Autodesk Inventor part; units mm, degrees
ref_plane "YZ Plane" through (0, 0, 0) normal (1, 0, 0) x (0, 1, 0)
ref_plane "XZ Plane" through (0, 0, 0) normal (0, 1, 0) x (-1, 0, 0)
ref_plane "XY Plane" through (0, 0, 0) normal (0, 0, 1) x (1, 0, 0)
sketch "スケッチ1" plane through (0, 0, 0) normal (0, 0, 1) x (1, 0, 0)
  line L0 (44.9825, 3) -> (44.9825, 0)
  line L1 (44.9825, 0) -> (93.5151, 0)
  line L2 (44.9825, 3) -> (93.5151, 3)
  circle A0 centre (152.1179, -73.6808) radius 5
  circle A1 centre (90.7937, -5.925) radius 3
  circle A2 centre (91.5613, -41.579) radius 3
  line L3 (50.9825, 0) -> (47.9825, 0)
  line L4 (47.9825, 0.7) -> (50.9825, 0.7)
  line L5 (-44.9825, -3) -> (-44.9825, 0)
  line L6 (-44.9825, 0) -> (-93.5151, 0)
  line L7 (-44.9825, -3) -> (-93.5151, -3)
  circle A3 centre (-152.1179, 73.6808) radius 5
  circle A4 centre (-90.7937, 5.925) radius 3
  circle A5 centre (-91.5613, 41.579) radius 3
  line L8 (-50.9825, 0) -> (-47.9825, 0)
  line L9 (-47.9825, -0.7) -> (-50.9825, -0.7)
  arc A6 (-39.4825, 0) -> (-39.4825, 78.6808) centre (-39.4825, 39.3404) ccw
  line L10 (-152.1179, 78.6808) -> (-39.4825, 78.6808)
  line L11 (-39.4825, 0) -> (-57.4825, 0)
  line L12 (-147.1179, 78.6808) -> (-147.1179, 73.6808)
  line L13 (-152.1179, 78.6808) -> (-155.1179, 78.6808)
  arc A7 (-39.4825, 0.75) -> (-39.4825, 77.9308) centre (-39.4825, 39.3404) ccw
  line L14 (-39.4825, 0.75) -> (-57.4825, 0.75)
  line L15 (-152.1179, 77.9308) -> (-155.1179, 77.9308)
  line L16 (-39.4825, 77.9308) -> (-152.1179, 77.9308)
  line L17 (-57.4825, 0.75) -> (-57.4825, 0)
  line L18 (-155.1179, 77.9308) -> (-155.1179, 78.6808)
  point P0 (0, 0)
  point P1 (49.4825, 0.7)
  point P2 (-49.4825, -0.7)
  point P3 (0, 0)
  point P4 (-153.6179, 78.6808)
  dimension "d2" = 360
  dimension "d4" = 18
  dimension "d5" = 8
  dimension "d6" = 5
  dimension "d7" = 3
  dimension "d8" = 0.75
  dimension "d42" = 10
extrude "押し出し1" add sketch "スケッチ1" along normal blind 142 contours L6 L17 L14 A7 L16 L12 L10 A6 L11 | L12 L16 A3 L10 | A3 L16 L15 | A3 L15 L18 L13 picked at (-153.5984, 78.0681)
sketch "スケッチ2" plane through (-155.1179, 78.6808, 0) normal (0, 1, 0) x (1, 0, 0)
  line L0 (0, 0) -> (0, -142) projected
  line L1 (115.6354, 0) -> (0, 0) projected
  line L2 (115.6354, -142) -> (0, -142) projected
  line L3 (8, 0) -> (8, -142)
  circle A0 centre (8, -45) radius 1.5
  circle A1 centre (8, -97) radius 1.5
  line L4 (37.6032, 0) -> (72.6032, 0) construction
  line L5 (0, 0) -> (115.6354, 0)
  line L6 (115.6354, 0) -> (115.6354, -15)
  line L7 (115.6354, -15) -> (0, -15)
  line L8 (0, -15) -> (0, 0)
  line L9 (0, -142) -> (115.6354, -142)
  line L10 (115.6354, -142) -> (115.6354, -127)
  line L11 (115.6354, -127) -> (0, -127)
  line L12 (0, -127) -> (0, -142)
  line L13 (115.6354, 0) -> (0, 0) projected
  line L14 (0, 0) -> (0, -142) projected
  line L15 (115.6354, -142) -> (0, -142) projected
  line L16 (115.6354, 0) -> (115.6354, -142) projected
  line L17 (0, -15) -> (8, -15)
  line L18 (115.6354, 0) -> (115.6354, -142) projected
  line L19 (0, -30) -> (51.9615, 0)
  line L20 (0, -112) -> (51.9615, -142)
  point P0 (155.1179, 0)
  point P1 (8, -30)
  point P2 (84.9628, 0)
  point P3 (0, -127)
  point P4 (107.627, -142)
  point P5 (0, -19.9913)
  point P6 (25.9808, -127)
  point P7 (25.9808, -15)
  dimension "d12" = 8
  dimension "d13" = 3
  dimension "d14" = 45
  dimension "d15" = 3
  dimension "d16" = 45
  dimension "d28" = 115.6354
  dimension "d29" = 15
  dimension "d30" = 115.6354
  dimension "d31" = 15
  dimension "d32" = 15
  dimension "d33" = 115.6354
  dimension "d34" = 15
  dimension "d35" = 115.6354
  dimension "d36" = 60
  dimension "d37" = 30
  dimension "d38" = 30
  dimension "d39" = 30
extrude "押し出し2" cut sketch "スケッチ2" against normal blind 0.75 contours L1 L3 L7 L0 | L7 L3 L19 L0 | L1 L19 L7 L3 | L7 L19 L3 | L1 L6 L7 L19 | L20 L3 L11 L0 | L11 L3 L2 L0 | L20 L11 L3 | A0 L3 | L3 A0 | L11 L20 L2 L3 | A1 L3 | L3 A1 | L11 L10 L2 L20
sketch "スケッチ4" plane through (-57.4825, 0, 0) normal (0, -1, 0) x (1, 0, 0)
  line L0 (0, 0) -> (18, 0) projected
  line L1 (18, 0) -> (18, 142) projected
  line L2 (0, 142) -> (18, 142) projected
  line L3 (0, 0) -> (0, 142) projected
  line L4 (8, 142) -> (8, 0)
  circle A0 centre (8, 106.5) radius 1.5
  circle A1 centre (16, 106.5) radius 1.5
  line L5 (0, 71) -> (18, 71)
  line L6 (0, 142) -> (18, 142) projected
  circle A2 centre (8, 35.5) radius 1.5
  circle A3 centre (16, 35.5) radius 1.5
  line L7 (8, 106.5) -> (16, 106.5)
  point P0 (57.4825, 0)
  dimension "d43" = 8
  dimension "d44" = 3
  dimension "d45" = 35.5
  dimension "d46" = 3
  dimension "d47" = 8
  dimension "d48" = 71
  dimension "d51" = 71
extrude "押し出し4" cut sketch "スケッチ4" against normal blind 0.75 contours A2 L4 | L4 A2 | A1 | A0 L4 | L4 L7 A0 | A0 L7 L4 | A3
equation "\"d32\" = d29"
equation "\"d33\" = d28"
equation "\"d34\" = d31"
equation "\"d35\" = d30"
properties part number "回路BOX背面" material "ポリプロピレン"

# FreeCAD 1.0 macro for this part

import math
import FreeCAD as App
import Part
import Sketcher

V = App.Vector
Q = App.Units.Quantity

doc = App.newDocument("Part")
body = doc.addObject("PartDesign::Body", "Body")

# Sketch on XY plane
sketch1 = body.newObject("Sketcher::SketchObject", "Sketch")
sketch1.AttachmentSupport = (doc.getObject("XY_Plane"), [""])
sketch1.MapMode = "FlatFace"
sketch1.addGeometry(Part.ArcOfCircle(Part.Circle(V(-39.5, 39.3, 0), V(0, 0, 1), 39.3), math.radians(-90), math.radians(90)), False)
sketch1.addGeometry(Part.LineSegment(V(-39.5, 78.7, 0), V(-155.1, 78.7, 0)), False)
sketch1.addGeometry(Part.LineSegment(V(-155.1, 78.7, 0), V(-155.1, 77.9, 0)), False)
sketch1.addGeometry(Part.LineSegment(V(-155.1, 77.9, 0), V(-39.5, 77.9, 0)), False)
sketch1.addGeometry(Part.ArcOfCircle(Part.Circle(V(-39.5, 39.3, 0), V(0, 0, 1), 38.6), math.radians(-90), math.radians(90)), False)
sketch1.addGeometry(Part.LineSegment(V(-39.5, 0.8, 0), V(-57.5, 0.8, 0)), False)
sketch1.addGeometry(Part.LineSegment(V(-57.5, 0.8, 0), V(-57.5, 0, 0)), False)
sketch1.addGeometry(Part.LineSegment(V(-57.5, 0, 0), V(-39.5, 0, 0)), False)
sketch1.addConstraint(Sketcher.Constraint("Tangent", 0, 2, 1, 1))
sketch1.addConstraint(Sketcher.Constraint("Coincident", 1, 2, 2, 1))
sketch1.addConstraint(Sketcher.Constraint("Coincident", 2, 2, 3, 1))
sketch1.addConstraint(Sketcher.Constraint("Tangent", 3, 2, 4, 2))
sketch1.addConstraint(Sketcher.Constraint("Tangent", 4, 1, 5, 1))
sketch1.addConstraint(Sketcher.Constraint("Coincident", 5, 2, 6, 1))
sketch1.addConstraint(Sketcher.Constraint("Coincident", 6, 2, 7, 1))
sketch1.addConstraint(Sketcher.Constraint("Tangent", 7, 2, 0, 1))
sketch1.addConstraint(Sketcher.Constraint("Horizontal", 1))
sketch1.addConstraint(Sketcher.Constraint("Vertical", 2))
sketch1.addConstraint(Sketcher.Constraint("Horizontal", 3))
sketch1.addConstraint(Sketcher.Constraint("Horizontal", 5))
sketch1.addConstraint(Sketcher.Constraint("Vertical", 6))
sketch1.addConstraint(Sketcher.Constraint("Horizontal", 7))
sketch1.addConstraint(Sketcher.Constraint("Coincident", 4, 3, 0, 3))
sketch1.addConstraint(Sketcher.Constraint("PointOnObject", 6, 2, -1))
sketch1.addConstraint(Sketcher.Constraint("DistanceX", 5, 2, 5, 1, 18.0))
sketch1.addConstraint(Sketcher.Constraint("DistanceY", 2, 2, 2, 1, 0.75))
sketch1.addConstraint(Sketcher.Constraint("Radius", 0, 39.3404))
sketch1.addConstraint(Sketcher.Constraint("DistanceX", 1, 2, 1, 1, 115.6354))
sketch1.addConstraint(Sketcher.Constraint("DistanceX", 1, 2, -1, 1, 155.118))
pad1 = body.newObject("PartDesign::Pad", "Pad")
pad1.Profile = sketch1
pad1.Length = 142

# Sketch on XZ plane
sketch2 = body.newObject("Sketcher::SketchObject", "Sketch001")
sketch2.AttachmentSupport = (doc.getObject("XZ_Plane"), [""])
sketch2.MapMode = "FlatFace"
sketch2.AttachmentOffset = App.Placement(V(0, 0, -78.6808), App.Rotation())
sketch2.addGeometry(Part.LineSegment(V(-155.1, 0, 0), V(-155.1, 30, 0)), False)
sketch2.addGeometry(Part.LineSegment(V(-155.1, 30, 0), V(-129.1, 15, 0)), False)
sketch2.addGeometry(Part.LineSegment(V(-129.1, 15, 0), V(-39.5, 15, 0)), False)
sketch2.addGeometry(Part.LineSegment(V(-39.5, 15, 0), V(-39.5, 0, 0)), False)
sketch2.addGeometry(Part.LineSegment(V(-39.5, 0, 0), V(-155.1, 0, 0)), False)
sketch2.addGeometry(Part.LineSegment(V(-155.1, 112, 0), V(-155.1, 142, 0)), False)
sketch2.addGeometry(Part.LineSegment(V(-155.1, 142, 0), V(-39.5, 142, 0)), False)
sketch2.addGeometry(Part.LineSegment(V(-39.5, 142, 0), V(-39.5, 127, 0)), False)
sketch2.addGeometry(Part.LineSegment(V(-39.5, 127, 0), V(-129.1, 127, 0)), False)
sketch2.addGeometry(Part.LineSegment(V(-129.1, 127, 0), V(-155.1, 112, 0)), False)
sketch2.addGeometry(Part.Circle(V(-147.1, 45, 0), V(0, 0, 1), 1.5), False)
sketch2.addGeometry(Part.Circle(V(-147.1, 97, 0), V(0, 0, 1), 1.5), False)
sketch2.addConstraint(Sketcher.Constraint("Coincident", 0, 2, 1, 1))
sketch2.addConstraint(Sketcher.Constraint("Coincident", 1, 2, 2, 1))
sketch2.addConstraint(Sketcher.Constraint("Coincident", 2, 2, 3, 1))
sketch2.addConstraint(Sketcher.Constraint("Coincident", 3, 2, 4, 1))
sketch2.addConstraint(Sketcher.Constraint("Coincident", 4, 2, 0, 1))
sketch2.addConstraint(Sketcher.Constraint("Coincident", 5, 2, 6, 1))
sketch2.addConstraint(Sketcher.Constraint("Coincident", 6, 2, 7, 1))
sketch2.addConstraint(Sketcher.Constraint("Coincident", 7, 2, 8, 1))
sketch2.addConstraint(Sketcher.Constraint("Coincident", 8, 2, 9, 1))
sketch2.addConstraint(Sketcher.Constraint("Coincident", 9, 2, 5, 1))
sketch2.addConstraint(Sketcher.Constraint("Vertical", 0))
sketch2.addConstraint(Sketcher.Constraint("Horizontal", 2))
sketch2.addConstraint(Sketcher.Constraint("Vertical", 3))
sketch2.addConstraint(Sketcher.Constraint("Horizontal", 4))
sketch2.addConstraint(Sketcher.Constraint("Vertical", 5))
sketch2.addConstraint(Sketcher.Constraint("Horizontal", 6))
sketch2.addConstraint(Sketcher.Constraint("Vertical", 7))
sketch2.addConstraint(Sketcher.Constraint("Horizontal", 8))
sketch2.addConstraint(Sketcher.Constraint("Equal", 10, 11))
sketch2.addConstraint(Sketcher.Constraint("PointOnObject", 3, 2, -1))
sketch2.addConstraint(Sketcher.Constraint("Vertical", 10, 3, 11, 3))
sketch2.addConstraint(Sketcher.Constraint("Vertical", 4, 2, 5, 2))
sketch2.addConstraint(Sketcher.Constraint("Vertical", 3, 2, 6, 2))
sketch2.addConstraint(Sketcher.Constraint("Vertical", 1, 2, 8, 2))
sketch2.addConstraint(Sketcher.Constraint("Equal", 0, 5))
sketch2.addConstraint(Sketcher.Constraint("Equal", 3, 7))
sketch2.addConstraint(Sketcher.Constraint("Diameter", 10, 3.0))
sketch2.addConstraint(Sketcher.Constraint("DistanceY", 0, 1, 0, 2, 30.0))
sketch2.addConstraint(Sketcher.Constraint("DistanceY", 3, 2, 3, 1, 15.0))
sketch2.addConstraint(Sketcher.Constraint("Angle", 1, Q("-30 deg")))
sketch2.addConstraint(Sketcher.Constraint("DistanceY", -1, 1, 10, 3, 45.0))
sketch2.addConstraint(Sketcher.Constraint("DistanceX", 0, 2, 10, 3, 8.0))
sketch2.addConstraint(Sketcher.Constraint("DistanceY", 11, 3, 5, 2, 45.0))
sketch2.addConstraint(Sketcher.Constraint("DistanceX", 4, 2, 4, 1, 115.6354))
sketch2.addConstraint(Sketcher.Constraint("DistanceY", -1, 1, 11, 3, 97.0))
sketch2.addConstraint(Sketcher.Constraint("DistanceX", 10, 3, -1, 1, 147.118))
pocket1 = body.newObject("PartDesign::Pocket", "Pocket")
pocket1.Profile = sketch2
pocket1.Length = 0.75
pocket1.Reversed = True

# Sketch on XZ plane
sketch3 = body.newObject("Sketcher::SketchObject", "Sketch002")
sketch3.AttachmentSupport = (doc.getObject("XZ_Plane"), [""])
sketch3.MapMode = "FlatFace"
sketch3.addGeometry(Part.Circle(V(-49.5, 35.5, 0), V(0, 0, 1), 1.5), False)
sketch3.addGeometry(Part.Circle(V(-41.5, 106.5, 0), V(0, 0, 1), 1.5), False)
sketch3.addGeometry(Part.Circle(V(-49.5, 106.5, 0), V(0, 0, 1), 1.5), False)
sketch3.addGeometry(Part.Circle(V(-41.5, 35.5, 0), V(0, 0, 1), 1.5), False)
sketch3.addConstraint(Sketcher.Constraint("Equal", 0, 1))
sketch3.addConstraint(Sketcher.Constraint("Equal", 1, 2))
sketch3.addConstraint(Sketcher.Constraint("Equal", 2, 3))
sketch3.addConstraint(Sketcher.Constraint("Horizontal", 1, 3, 2, 3))
sketch3.addConstraint(Sketcher.Constraint("Horizontal", 0, 3, 3, 3))
sketch3.addConstraint(Sketcher.Constraint("Vertical", 0, 3, 2, 3))
sketch3.addConstraint(Sketcher.Constraint("Vertical", 1, 3, 3, 3))
sketch3.addConstraint(Sketcher.Constraint("Diameter", 0, 3.0))
sketch3.addConstraint(Sketcher.Constraint("DistanceX", 0, 3, 1, 3, 8.0))
sketch3.addConstraint(Sketcher.Constraint("DistanceY", 0, 3, 1, 3, 71.0))
sketch3.addConstraint(Sketcher.Constraint("DistanceY", -1, 1, 0, 3, 35.5))
sketch3.addConstraint(Sketcher.Constraint("DistanceX", 0, 3, -1, 1, 49.4825))
pocket2 = body.newObject("PartDesign::Pocket", "Pocket001")
pocket2.Profile = sketch3
pocket2.Length = 0.75

doc.recompute()
